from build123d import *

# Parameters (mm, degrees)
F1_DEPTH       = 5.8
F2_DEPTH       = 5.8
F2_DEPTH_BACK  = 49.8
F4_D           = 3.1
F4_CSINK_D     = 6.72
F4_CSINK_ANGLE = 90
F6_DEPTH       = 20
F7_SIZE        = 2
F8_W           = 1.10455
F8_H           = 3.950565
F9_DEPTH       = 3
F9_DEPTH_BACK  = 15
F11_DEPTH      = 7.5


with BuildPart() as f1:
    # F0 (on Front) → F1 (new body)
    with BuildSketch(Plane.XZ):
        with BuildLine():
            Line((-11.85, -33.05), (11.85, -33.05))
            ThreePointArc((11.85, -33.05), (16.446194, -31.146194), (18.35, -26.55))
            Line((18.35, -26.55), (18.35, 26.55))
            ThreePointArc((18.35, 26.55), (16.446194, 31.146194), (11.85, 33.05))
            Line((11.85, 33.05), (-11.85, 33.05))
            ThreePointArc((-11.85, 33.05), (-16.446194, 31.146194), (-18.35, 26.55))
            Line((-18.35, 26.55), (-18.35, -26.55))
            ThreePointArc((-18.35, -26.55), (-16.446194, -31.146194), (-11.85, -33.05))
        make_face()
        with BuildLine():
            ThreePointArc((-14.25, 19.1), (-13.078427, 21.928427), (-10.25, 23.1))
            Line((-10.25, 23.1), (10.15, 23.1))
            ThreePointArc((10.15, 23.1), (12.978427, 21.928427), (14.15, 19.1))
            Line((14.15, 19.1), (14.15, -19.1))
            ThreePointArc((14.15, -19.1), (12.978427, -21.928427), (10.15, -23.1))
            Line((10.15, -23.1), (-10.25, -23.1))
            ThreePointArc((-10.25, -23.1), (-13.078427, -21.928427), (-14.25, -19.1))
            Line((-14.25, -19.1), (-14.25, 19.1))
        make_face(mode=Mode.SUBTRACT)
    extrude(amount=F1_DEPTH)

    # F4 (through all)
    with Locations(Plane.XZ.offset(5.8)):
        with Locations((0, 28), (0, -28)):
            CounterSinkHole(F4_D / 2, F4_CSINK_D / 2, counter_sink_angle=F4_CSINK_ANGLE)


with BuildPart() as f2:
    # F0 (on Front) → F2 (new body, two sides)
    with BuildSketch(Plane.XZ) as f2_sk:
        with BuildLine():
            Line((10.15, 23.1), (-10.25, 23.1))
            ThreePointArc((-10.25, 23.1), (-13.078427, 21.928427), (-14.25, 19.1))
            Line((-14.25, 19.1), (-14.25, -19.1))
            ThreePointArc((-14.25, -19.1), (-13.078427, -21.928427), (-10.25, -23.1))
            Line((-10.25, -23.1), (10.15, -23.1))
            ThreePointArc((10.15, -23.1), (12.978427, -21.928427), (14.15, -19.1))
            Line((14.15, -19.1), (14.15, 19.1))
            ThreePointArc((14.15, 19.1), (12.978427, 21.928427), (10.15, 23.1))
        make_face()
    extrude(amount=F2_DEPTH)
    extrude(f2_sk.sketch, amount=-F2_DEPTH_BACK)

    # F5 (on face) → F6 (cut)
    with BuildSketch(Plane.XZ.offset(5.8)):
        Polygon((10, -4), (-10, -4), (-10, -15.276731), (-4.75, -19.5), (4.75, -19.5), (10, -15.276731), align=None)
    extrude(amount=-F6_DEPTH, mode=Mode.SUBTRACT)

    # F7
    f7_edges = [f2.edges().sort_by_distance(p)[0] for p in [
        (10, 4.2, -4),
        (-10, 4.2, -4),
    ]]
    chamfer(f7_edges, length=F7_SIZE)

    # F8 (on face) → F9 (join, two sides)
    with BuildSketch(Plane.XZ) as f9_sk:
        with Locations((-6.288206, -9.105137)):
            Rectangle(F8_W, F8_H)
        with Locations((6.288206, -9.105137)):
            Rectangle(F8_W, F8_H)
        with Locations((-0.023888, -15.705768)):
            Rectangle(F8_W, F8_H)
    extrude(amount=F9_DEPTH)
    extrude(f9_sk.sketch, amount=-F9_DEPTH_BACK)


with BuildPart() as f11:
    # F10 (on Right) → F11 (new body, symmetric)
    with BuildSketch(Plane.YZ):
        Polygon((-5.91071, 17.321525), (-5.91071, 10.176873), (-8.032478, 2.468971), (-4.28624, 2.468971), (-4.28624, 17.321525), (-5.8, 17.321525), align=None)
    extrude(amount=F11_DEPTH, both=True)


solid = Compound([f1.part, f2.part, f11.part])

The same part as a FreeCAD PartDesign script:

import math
import FreeCAD as App
import Part
import Sketcher

V = App.Vector
Q = App.Units.Quantity


def edges_at(feature, points):
    """Names of the edges that pass closest to the given points."""
    edges = feature.Shape.Edges
    near = lambda p: min(range(len(edges)), key=lambda i: edges[i].distToShape(Part.Vertex(*p))[0])
    return sorted({f"Edge{near(p) + 1}" for p in points})


def add_polygon(sketch, points):
    """Adds a closed chain of lines whose ends are joined by coincident constraints."""
    first, n = sketch.GeometryCount, len(points)
    for a, b in zip(points, points[1:] + points[:1]):
        sketch.addGeometry(Part.LineSegment(App.Vector(*a, 0), App.Vector(*b, 0)), False)
    for i in range(n):
        sketch.addConstraint(Sketcher.Constraint("Coincident", first + i, 2, first + (i + 1) % n, 1))

doc = App.newDocument("Part")
body = doc.addObject("PartDesign::Body", "Body")

# Sketch on XZ plane
sketch1 = doc.addObject("Sketcher::SketchObject", "Sketch")
body.addObject(sketch1)
sketch1.AttachmentSupport = (doc.XZ_Plane, [""])
sketch1.MapMode = "FlatFace"
sketch1.addGeometry([
    Part.LineSegment(V(-11.8, -33, 0), V(11.8, -33, 0)),  # 0
    Part.ArcOfCircle(Part.Circle(V(11.8, -26.5, 0), V(0, 0, 1), 6.5), math.radians(-90), math.radians(0)),  # 1
    Part.LineSegment(V(18.4, -26.6, 0), V(18.4, 26.6, 0)),  # 2
    Part.ArcOfCircle(Part.Circle(V(11.8, 26.5, 0), V(0, 0, 1), 6.5), math.radians(0), math.radians(90)),  # 3
    Part.LineSegment(V(11.8, 33, 0), V(-11.8, 33, 0)),  # 4
    Part.ArcOfCircle(Part.Circle(V(-11.8, 26.5, 0), V(0, 0, 1), 6.5), math.radians(90), math.radians(180)),  # 5
    Part.LineSegment(V(-18.4, 26.6, 0), V(-18.4, -26.6, 0)),  # 6
    Part.ArcOfCircle(Part.Circle(V(-11.8, -26.5, 0), V(0, 0, 1), 6.5), math.radians(-180), math.radians(-90)),  # 7
    Part.LineSegment(V(-14.2, -19.1, 0), V(-14.2, 19.1, 0)),  # 8
    Part.ArcOfCircle(Part.Circle(V(-10.2, 19.1, 0), V(0, 0, 1), 4), math.radians(90), math.radians(180)),  # 9
    Part.LineSegment(V(-10.2, 23.1, 0), V(10.2, 23.1, 0)),  # 10
    Part.ArcOfCircle(Part.Circle(V(10.1, 19.1, 0), V(0, 0, 1), 4), math.radians(0), math.radians(90)),  # 11
    Part.LineSegment(V(14.2, 19.1, 0), V(14.2, -19.1, 0)),  # 12
    Part.ArcOfCircle(Part.Circle(V(10.1, -19.1, 0), V(0, 0, 1), 4), math.radians(-90), math.radians(0)),  # 13
    Part.LineSegment(V(10.2, -23.1, 0), V(-10.2, -23.1, 0)),  # 14
    Part.ArcOfCircle(Part.Circle(V(-10.2, -19.1, 0), V(0, 0, 1), 4), math.radians(-180), math.radians(-90)),  # 15
], False)
sketch1.addConstraint([
    Sketcher.Constraint("Tangent", 0, 2, 1, 1),
    Sketcher.Constraint("Tangent", 1, 2, 2, 1),
    Sketcher.Constraint("Tangent", 2, 2, 3, 1),
    Sketcher.Constraint("Tangent", 3, 2, 4, 1),
    Sketcher.Constraint("Tangent", 4, 2, 5, 1),
    Sketcher.Constraint("Tangent", 5, 2, 6, 1),
    Sketcher.Constraint("Tangent", 6, 2, 7, 1),
    Sketcher.Constraint("Tangent", 7, 2, 0, 1),
    Sketcher.Constraint("Tangent", 8, 2, 9, 2),
    Sketcher.Constraint("Tangent", 9, 1, 10, 1),
    Sketcher.Constraint("Tangent", 10, 2, 11, 2),
    Sketcher.Constraint("Tangent", 11, 1, 12, 1),
    Sketcher.Constraint("Tangent", 12, 2, 13, 2),
    Sketcher.Constraint("Tangent", 13, 1, 14, 1),
    Sketcher.Constraint("Tangent", 14, 2, 15, 2),
    Sketcher.Constraint("Tangent", 15, 1, 8, 1),
    Sketcher.Constraint("Horizontal", 0),
    Sketcher.Constraint("Vertical", 2),
    Sketcher.Constraint("Horizontal", 4),
    Sketcher.Constraint("Vertical", 6),
    Sketcher.Constraint("Vertical", 8),
    Sketcher.Constraint("Horizontal", 10),
    Sketcher.Constraint("Vertical", 12),
    Sketcher.Constraint("Horizontal", 14),
    Sketcher.Constraint("Equal", 1, 3),
    Sketcher.Constraint("Equal", 3, 5),
    Sketcher.Constraint("Equal", 5, 7),
    Sketcher.Constraint("Equal", 9, 11),
    Sketcher.Constraint("Equal", 11, 13),
    Sketcher.Constraint("Equal", 13, 15),
    Sketcher.Constraint("Symmetric", 1, 3, 5, 3, -1, 1),
    Sketcher.Constraint("Radius", 9, Q("4 mm")),
    Sketcher.Constraint("Radius", 1, Q("6.5 mm")),
    Sketcher.Constraint("DistanceX", 0, 1, 0, 2, Q("23.7 mm")),
    Sketcher.Constraint("DistanceX", 10, 1, 10, 2, Q("20.4 mm")),
    Sketcher.Constraint("DistanceY", 2, 1, 2, 2, Q("53.1 mm")),
    Sketcher.Constraint("DistanceY", 8, 1, 8, 2, Q("38.2 mm")),
    Sketcher.Constraint("DistanceX", 5, 3, 11, 3, Q("21.999999 mm")),
    Sketcher.Constraint("DistanceY", -1, 1, 9, 3, Q("19.1 mm")),
])
pad1 = doc.addObject("PartDesign::Pad", "Pad")
body.addObject(pad1)
pad1.Profile = sketch1
pad1.Length = 5.8

# Sketch on XZ plane
sketch2 = doc.addObject("Sketcher::SketchObject", "Sketch001")
body.addObject(sketch2)
sketch2.AttachmentSupport = (doc.XZ_Plane, [""])
sketch2.MapMode = "FlatFace"
sketch2.AttachmentOffset = App.Placement(V(0, 0, 5.8), App.Rotation())
sketch2.addGeometry([
    Part.Circle(V(0, 28, 0), V(0, 0, 1), 1.6),
    Part.Circle(V(0, -28, 0), V(0, 0, 1), 1.6),
], False)
sketch2.addConstraint([
    Sketcher.Constraint("Equal", 0, 1),
    Sketcher.Constraint("Symmetric", 0, 3, 1, 3, -1, 1),
    Sketcher.Constraint("PointOnObject", 0, 3, -2),
    Sketcher.Constraint("Diameter", 0, Q("3.1 mm")),
    Sketcher.Constraint("DistanceY", -1, 1, 0, 3, Q("28 mm")),
])
doc.recompute()
hole = doc.addObject("PartDesign::Hole", "Hole")
body.addObject(hole)
hole.Profile = sketch2
hole.ThreadType = "None"
hole.Diameter = 3.1
hole.DepthType = "ThroughAll"
hole.HoleCutType = "Countersink"
hole.HoleCutDiameter = 6.72
hole.HoleCutCountersinkAngle = 90
body2 = doc.addObject("PartDesign::Body", "Body001")

# Sketch on XZ plane
sketch3 = doc.addObject("Sketcher::SketchObject", "Sketch002")
body2.addObject(sketch3)
sketch3.AttachmentSupport = (doc.getObject("XZ_Plane001"), [""])
sketch3.MapMode = "FlatFace"
sketch3.addGeometry([
    Part.LineSegment(V(10.2, 23.1, 0), V(-10.2, 23.1, 0)),  # 0
    Part.ArcOfCircle(Part.Circle(V(-10.2, 19.1, 0), V(0, 0, 1), 4), math.radians(90), math.radians(180)),  # 1
    Part.LineSegment(V(-14.2, 19.1, 0), V(-14.2, -19.1, 0)),  # 2
    Part.ArcOfCircle(Part.Circle(V(-10.2, -19.1, 0), V(0, 0, 1), 4), math.radians(-180), math.radians(-90)),  # 3
    Part.LineSegment(V(-10.2, -23.1, 0), V(10.2, -23.1, 0)),  # 4
    Part.ArcOfCircle(Part.Circle(V(10.1, -19.1, 0), V(0, 0, 1), 4), math.radians(-90), math.radians(0)),  # 5
    Part.LineSegment(V(14.2, -19.1, 0), V(14.2, 19.1, 0)),  # 6
    Part.ArcOfCircle(Part.Circle(V(10.1, 19.1, 0), V(0, 0, 1), 4), math.radians(0), math.radians(90)),  # 7
], False)
sketch3.addConstraint([
    Sketcher.Constraint("Tangent", 0, 2, 1, 1),
    Sketcher.Constraint("Tangent", 1, 2, 2, 1),
    Sketcher.Constraint("Tangent", 2, 2, 3, 1),
    Sketcher.Constraint("Tangent", 3, 2, 4, 1),
    Sketcher.Constraint("Tangent", 4, 2, 5, 1),
    Sketcher.Constraint("Tangent", 5, 2, 6, 1),
    Sketcher.Constraint("Tangent", 6, 2, 7, 1),
    Sketcher.Constraint("Tangent", 7, 2, 0, 1),
    Sketcher.Constraint("Horizontal", 0),
    Sketcher.Constraint("Vertical", 2),
    Sketcher.Constraint("Horizontal", 4),
    Sketcher.Constraint("Vertical", 6),
    Sketcher.Constraint("Equal", 1, 3),
    Sketcher.Constraint("Equal", 3, 5),
    Sketcher.Constraint("Equal", 5, 7),
    Sketcher.Constraint("Radius", 1, Q("4 mm")),
    Sketcher.Constraint("DistanceX", 0, 2, 0, 1, Q("20.4 mm")),
    Sketcher.Constraint("DistanceY", 2, 2, 2, 1, Q("38.2 mm")),
    Sketcher.Constraint("DistanceY", -1, 1, 1, 3, Q("19.1 mm")),
    Sketcher.Constraint("DistanceX", 1, 3, -1, 1, Q("10.25 mm")),
])
pad2 = doc.addObject("PartDesign::Pad", "Pad001")
body2.addObject(pad2)
pad2.Profile = sketch3
pad2.Type = "TwoLengths"
pad2.Length = 5.8
pad2.Length2 = 49.8

# Sketch on XZ plane
sketch4 = doc.addObject("Sketcher::SketchObject", "Sketch003")
body2.addObject(sketch4)
sketch4.AttachmentSupport = (doc.getObject("XZ_Plane001"), [""])
sketch4.MapMode = "FlatFace"
sketch4.AttachmentOffset = App.Placement(V(0, 0, 5.8), App.Rotation())
add_polygon(sketch4, [(10, -4), (-10, -4), (-10, -15), (-5, -20), (5, -20), (10, -15)])  # lines 0-5
sketch4.addConstraint([
    Sketcher.Constraint("Horizontal", 0),
    Sketcher.Constraint("Vertical", 1),
    Sketcher.Constraint("Horizontal", 3),
    Sketcher.Constraint("Vertical", 5),
    Sketcher.Constraint("Symmetric", 1, 2, 4, 2, -2),
    Sketcher.Constraint("Equal", 2, 4),
    Sketcher.Constraint("DistanceX", 0, 2, 0, 1, Q("20 mm")),
    Sketcher.Constraint("DistanceX", 3, 1, 3, 2, Q("9.5 mm")),
    Sketcher.Constraint("DistanceY", 0, 2, -1, 1, Q("4 mm")),
    Sketcher.Constraint("DistanceY", 2, 2, -1, 1, Q("19.5 mm")),
    Sketcher.Constraint("DistanceY", 1, 2, 1, 1, Q("11.276731 mm")),
])
pocket1 = doc.addObject("PartDesign::Pocket", "Pocket")
body2.addObject(pocket1)
pocket1.Profile = sketch4
pocket1.Length = 20
doc.recompute()

chamfer = doc.addObject("PartDesign::Chamfer", "Chamfer")
body2.addObject(chamfer)
chamfer.Base = (pocket1, edges_at(pocket1, [(10, 4.2, -4), (-10, 4.2, -4)]))
chamfer.Size = 2

# Sketch on XZ plane
sketch5 = doc.addObject("Sketcher::SketchObject", "Sketch004")
body2.addObject(sketch5)
sketch5.AttachmentSupport = (doc.getObject("XZ_Plane001"), [""])
sketch5.MapMode = "FlatFace"
add_polygon(sketch5, [(-6.8, -7.1), (-6.8, -11.1), (-5.7, -11.1), (-5.7, -7.1)])  # lines 0-3
add_polygon(sketch5, [(5.7, -7.1), (5.7, -11.1), (6.8, -11.1), (6.8, -7.1)])  # lines 4-7
add_polygon(sketch5, [(-0.6, -13.7), (-0.6, -17.7), (0.5, -17.7), (0.5, -13.7)])  # lines 8-11
sketch5.addConstraint([
    Sketcher.Constraint("Vertical", 0),
    Sketcher.Constraint("Horizontal", 1),
    Sketcher.Constraint("Vertical", 2),
    Sketcher.Constraint("Horizontal", 3),
    Sketcher.Constraint("Vertical", 4),
    Sketcher.Constraint("Horizontal", 5),
    Sketcher.Constraint("Vertical", 6),
    Sketcher.Constraint("Horizontal", 7),
    Sketcher.Constraint("Vertical", 8),
    Sketcher.Constraint("Horizontal", 9),
    Sketcher.Constraint("Vertical", 10),
    Sketcher.Constraint("Horizontal", 11),
    Sketcher.Constraint("Symmetric", 1, 2, 4, 2, -2),
    Sketcher.Constraint("Symmetric", 3, 2, 6, 2, -2),
    Sketcher.Constraint("Equal", 7, 9),
    Sketcher.Constraint("Equal", 6, 8),
    Sketcher.Constraint("DistanceX", 1, 1, 1, 2, Q("1.10455 mm")),
    Sketcher.Constraint("DistanceY", 0, 2, 0, 1, Q("3.950565 mm")),
    Sketcher.Constraint("DistanceX", 0, 2, -1, 1, Q("6.840481 mm")),
    Sketcher.Constraint("DistanceY", 0, 2, -1, 1, Q("11.080419 mm")),
    Sketcher.Constraint("DistanceY", 8, 2, -1, 1, Q("17.681051 mm")),
    Sketcher.Constraint("DistanceX", 1, 2, 9, 2, Q("6.264318 mm")),
])
pad3 = doc.addObject("PartDesign::Pad", "Pad002")
body2.addObject(pad3)
pad3.Profile = sketch5
pad3.Type = "TwoLengths"
pad3.Length = 3
pad3.Length2 = 15
body3 = doc.addObject("PartDesign::Body", "Body002")

# Sketch on YZ plane
sketch6 = doc.addObject("Sketcher::SketchObject", "Sketch005")
body3.addObject(sketch6)
sketch6.AttachmentSupport = (doc.getObject("YZ_Plane002"), [""])
sketch6.MapMode = "FlatFace"
add_polygon(sketch6, [(-5.9, 17.3), (-5.9, 10.2), (-8, 2.5), (-4.3, 2.5), (-4.3, 17.3)])  # lines 0-4
sketch6.addConstraint([
    Sketcher.Constraint("Vertical", 0),
    Sketcher.Constraint("Horizontal", 2),
    Sketcher.Constraint("Vertical", 3),
    Sketcher.Constraint("Horizontal", 4),
    Sketcher.Constraint("Distance", 1, Q("7.994601 mm")),
    Sketcher.Constraint("DistanceX", 4, 2, 4, 1, Q("1.62447 mm")),
    Sketcher.Constraint("DistanceX", 2, 1, 2, 2, Q("3.746238 mm")),
    Sketcher.Constraint("DistanceY", 0, 2, 0, 1, Q("7.144652 mm")),
    Sketcher.Constraint("DistanceX", 0, 2, -1, 1, Q("5.91071 mm")),
    Sketcher.Constraint("DistanceY", -1, 1, 1, 2, Q("2.468971 mm")),
])
pad4 = doc.addObject("PartDesign::Pad", "Pad003")
body3.addObject(pad4)
pad4.Profile = sketch6
pad4.Length = 15
pad4.Midplane = True

doc.recompute()
